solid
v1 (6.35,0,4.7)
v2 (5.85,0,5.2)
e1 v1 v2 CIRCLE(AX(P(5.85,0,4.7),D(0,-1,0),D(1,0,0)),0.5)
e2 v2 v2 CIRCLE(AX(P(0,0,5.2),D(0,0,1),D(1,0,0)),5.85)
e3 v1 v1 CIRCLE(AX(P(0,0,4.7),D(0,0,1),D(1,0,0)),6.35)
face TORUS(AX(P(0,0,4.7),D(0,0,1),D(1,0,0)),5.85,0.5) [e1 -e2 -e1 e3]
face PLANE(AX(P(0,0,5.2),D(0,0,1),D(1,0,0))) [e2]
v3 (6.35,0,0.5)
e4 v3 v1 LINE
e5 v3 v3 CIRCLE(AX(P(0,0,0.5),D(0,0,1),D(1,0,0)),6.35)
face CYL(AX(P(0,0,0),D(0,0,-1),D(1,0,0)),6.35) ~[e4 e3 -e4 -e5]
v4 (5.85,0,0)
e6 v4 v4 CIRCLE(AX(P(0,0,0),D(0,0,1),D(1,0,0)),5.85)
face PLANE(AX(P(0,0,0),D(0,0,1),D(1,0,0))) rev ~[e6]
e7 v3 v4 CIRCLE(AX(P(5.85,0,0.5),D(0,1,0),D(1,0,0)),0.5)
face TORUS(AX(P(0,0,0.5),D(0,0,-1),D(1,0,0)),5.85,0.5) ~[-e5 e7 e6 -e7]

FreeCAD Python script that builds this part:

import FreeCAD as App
import Part
import Sketcher
from FreeCAD import Vector


def edges_at(feature, points):
    """Names of the edges that pass closest to the given points."""
    edges = feature.Shape.Edges
    near = lambda p: min(range(len(edges)), key=lambda i: edges[i].distToShape(Part.Vertex(*p))[0])
    return sorted({f"Edge{near(p) + 1}" for p in points})

doc = App.newDocument("Part")
params = doc.addObject("Spreadsheet::Sheet", "Params")
for row, (alias, value) in enumerate([
    ("sketch1_diameter", "12.7 mm"),
    ("pad1_length", "5.2 mm"),
    ("fillet_radius", "0.5 mm"),
], start=1):
    params.set(f"A{row}", alias)
    params.set(f"B{row}", "=" + value)
    params.setAlias(f"B{row}", alias)

body = doc.addObject("PartDesign::Body", "Body")

sketch1 = body.newObject("Sketcher::SketchObject", "Sketch")
sketch1.AttachmentSupport = (doc.getObject("XY_Plane"), [""])
sketch1.MapMode = "FlatFace"
sketch1.addGeometry(Part.Circle(Vector(0, 0, 0), Vector(0, 0, 1), 6), False)
sketch1.addConstraint([
    Sketcher.Constraint("Coincident", 0, 3, -1, 1),
    Sketcher.Constraint("Diameter", 0, 12.7),
])
sketch1.setExpression("Constraints[1]", "Params.sketch1_diameter")
pad1 = body.newObject("PartDesign::Pad", "Pad")
pad1.Profile = sketch1
pad1.setExpression("Length", "Params.pad1_length")
doc.recompute()

fillet = body.newObject("PartDesign::Fillet", "Fillet")
fillet.Base = (pad1, edges_at(pad1, [(-6.35, 0, 5.2), (-6.35, 0, 0)]))
fillet.setExpression("Radius", "Params.fillet_radius")

doc.recompute()
